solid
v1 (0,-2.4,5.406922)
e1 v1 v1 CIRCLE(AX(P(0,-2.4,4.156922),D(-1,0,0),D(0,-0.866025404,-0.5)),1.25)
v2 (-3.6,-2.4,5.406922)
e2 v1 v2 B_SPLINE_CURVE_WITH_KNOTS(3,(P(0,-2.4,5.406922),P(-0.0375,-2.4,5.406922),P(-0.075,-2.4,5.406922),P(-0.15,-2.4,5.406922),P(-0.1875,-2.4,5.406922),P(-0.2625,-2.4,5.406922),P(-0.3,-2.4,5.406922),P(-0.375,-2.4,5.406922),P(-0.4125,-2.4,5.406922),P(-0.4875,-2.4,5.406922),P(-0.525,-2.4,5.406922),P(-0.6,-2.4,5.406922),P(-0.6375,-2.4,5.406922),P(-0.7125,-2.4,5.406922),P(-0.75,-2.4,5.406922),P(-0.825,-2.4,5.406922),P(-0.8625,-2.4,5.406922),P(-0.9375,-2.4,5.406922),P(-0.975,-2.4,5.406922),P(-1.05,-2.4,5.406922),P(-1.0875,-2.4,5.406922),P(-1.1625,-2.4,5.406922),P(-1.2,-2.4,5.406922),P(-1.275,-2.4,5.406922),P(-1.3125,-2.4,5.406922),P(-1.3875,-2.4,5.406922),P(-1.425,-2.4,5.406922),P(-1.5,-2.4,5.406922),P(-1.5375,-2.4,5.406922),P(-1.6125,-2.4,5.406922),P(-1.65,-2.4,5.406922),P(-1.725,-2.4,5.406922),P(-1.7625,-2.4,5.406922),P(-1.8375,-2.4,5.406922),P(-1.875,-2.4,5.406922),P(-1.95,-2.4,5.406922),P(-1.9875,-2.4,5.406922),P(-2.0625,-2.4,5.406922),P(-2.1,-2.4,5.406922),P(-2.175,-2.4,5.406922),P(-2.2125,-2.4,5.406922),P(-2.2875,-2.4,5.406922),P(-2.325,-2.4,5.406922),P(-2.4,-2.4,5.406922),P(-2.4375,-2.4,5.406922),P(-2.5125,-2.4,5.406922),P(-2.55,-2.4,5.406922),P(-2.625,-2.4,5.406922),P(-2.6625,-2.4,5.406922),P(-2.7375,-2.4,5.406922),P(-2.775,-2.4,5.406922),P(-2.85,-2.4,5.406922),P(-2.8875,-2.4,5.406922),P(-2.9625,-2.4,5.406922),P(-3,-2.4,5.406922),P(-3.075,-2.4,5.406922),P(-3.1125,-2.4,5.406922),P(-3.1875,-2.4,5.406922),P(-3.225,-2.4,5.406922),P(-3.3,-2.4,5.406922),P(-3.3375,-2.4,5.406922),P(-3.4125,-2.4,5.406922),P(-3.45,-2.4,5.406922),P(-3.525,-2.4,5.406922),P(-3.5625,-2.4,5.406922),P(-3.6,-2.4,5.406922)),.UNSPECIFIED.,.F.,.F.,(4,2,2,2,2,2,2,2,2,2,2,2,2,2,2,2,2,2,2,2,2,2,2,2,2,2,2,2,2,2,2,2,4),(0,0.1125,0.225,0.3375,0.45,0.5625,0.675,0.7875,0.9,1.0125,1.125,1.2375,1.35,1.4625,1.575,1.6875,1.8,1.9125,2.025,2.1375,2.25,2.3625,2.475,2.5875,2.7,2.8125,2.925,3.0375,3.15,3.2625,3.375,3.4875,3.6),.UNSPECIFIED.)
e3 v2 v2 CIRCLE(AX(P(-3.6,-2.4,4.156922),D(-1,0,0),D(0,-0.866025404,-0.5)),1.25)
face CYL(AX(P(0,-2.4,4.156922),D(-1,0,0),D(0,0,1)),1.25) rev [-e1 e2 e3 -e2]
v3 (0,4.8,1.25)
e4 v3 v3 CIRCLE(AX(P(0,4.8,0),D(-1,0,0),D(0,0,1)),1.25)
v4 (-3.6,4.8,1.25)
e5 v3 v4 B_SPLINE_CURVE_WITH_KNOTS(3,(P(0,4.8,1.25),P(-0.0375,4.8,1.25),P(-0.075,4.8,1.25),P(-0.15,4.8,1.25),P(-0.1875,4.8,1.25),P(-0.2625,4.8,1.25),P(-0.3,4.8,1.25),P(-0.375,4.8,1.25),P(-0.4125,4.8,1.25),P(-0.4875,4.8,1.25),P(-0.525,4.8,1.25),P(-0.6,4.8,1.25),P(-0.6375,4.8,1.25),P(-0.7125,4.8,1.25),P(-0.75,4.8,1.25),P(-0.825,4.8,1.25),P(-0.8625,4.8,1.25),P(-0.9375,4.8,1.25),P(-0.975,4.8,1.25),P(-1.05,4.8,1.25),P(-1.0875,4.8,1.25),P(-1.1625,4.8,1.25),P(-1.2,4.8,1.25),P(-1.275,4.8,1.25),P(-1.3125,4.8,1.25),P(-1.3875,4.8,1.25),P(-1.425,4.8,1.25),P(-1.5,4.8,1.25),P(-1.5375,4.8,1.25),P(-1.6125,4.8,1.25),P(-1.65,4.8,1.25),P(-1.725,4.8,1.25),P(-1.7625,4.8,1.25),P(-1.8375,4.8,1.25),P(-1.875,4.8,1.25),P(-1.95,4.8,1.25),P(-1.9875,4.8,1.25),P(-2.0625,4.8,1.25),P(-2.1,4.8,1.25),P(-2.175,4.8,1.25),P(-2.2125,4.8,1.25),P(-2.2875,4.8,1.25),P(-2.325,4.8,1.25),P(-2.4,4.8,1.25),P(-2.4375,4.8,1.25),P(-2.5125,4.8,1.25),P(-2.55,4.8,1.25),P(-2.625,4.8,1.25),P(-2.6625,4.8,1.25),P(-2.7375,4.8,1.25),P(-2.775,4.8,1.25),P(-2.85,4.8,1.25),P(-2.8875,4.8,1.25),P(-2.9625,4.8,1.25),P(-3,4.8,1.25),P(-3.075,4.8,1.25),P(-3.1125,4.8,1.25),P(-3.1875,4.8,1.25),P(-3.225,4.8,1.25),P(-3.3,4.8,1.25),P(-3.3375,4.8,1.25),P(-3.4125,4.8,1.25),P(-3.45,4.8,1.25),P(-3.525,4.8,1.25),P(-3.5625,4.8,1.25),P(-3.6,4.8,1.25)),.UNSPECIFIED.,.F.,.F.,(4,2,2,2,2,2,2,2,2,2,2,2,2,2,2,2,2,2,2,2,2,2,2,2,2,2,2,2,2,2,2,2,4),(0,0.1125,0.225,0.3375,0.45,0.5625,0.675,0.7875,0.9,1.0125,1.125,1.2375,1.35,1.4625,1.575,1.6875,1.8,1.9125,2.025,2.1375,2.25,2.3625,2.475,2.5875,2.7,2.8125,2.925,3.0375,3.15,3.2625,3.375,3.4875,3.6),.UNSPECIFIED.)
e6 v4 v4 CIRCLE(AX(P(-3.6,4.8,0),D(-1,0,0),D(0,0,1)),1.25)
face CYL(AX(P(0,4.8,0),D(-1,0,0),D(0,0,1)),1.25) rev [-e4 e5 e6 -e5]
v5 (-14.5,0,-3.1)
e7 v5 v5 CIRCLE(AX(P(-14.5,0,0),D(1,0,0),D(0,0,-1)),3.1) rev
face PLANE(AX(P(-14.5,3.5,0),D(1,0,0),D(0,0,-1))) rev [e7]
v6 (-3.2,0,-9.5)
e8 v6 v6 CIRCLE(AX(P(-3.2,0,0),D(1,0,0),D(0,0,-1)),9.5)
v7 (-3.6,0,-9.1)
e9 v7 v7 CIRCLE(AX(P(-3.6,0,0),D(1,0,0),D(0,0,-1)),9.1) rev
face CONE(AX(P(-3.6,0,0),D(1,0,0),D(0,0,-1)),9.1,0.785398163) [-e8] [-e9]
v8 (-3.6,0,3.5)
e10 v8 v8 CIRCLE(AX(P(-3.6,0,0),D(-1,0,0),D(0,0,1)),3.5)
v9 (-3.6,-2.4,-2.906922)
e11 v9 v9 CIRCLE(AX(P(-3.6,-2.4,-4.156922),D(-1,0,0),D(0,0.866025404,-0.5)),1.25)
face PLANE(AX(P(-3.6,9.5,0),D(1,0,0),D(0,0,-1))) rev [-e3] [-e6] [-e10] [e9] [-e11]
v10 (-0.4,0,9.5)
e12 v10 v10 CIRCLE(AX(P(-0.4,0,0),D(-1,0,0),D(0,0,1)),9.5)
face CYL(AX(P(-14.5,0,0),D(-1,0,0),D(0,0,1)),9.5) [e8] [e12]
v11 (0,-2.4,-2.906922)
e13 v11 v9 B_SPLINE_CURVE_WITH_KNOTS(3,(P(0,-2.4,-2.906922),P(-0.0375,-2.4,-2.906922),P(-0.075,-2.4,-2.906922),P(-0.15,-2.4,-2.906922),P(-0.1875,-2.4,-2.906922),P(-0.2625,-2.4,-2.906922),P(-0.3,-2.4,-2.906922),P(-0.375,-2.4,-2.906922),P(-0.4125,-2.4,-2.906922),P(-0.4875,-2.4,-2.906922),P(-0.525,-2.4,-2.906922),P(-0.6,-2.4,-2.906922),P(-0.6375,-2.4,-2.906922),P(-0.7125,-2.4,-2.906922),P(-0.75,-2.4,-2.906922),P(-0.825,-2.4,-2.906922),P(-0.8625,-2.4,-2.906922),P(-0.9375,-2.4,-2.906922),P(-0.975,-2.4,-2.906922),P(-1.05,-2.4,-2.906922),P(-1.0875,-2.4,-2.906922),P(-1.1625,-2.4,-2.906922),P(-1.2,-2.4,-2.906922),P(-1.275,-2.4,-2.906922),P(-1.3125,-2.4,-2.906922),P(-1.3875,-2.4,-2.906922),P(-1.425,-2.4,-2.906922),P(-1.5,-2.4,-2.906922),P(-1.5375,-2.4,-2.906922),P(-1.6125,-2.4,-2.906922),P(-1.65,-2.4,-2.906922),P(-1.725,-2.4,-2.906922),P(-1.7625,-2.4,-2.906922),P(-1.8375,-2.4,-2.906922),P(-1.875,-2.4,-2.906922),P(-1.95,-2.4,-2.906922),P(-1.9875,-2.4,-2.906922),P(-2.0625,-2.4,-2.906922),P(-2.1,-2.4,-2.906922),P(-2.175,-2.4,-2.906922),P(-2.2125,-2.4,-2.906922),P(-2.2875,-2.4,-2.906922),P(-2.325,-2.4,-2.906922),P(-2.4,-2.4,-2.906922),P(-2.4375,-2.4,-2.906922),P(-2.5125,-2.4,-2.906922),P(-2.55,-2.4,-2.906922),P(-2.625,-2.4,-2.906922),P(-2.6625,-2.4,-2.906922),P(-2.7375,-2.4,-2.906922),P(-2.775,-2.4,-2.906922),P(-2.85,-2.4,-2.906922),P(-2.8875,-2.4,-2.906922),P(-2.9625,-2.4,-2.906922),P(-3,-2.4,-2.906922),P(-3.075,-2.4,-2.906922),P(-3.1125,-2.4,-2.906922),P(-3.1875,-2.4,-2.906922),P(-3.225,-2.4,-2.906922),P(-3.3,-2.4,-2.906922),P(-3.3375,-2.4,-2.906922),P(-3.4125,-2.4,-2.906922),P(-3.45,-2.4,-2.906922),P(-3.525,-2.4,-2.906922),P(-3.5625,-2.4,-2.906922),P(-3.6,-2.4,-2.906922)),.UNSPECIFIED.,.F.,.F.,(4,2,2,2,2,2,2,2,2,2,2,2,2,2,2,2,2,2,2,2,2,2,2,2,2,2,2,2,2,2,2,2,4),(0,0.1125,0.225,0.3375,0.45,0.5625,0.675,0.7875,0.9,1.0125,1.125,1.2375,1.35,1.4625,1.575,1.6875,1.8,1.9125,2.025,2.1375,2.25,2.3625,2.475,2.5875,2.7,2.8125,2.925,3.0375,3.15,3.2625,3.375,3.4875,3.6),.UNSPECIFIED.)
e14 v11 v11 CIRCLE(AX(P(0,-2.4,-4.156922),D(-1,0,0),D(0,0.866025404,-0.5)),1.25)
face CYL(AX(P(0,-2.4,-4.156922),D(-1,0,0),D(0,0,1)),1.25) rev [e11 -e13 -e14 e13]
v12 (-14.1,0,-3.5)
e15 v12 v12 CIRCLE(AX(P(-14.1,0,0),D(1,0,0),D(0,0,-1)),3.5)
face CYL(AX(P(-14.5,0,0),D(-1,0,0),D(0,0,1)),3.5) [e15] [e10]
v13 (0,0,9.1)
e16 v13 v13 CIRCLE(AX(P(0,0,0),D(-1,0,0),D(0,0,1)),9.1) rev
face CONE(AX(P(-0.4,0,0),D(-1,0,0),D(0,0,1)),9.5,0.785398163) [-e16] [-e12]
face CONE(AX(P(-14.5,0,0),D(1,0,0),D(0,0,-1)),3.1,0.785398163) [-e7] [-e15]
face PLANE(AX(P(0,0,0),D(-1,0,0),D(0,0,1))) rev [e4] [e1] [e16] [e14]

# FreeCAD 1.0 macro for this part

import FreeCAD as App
import Part
import Sketcher

V = App.Vector
Q = App.Units.Quantity


def edges_at(feature, points):
    """Names of the edges that pass closest to the given points."""
    edges = feature.Shape.Edges
    near = lambda p: min(range(len(edges)), key=lambda i: edges[i].distToShape(Part.Vertex(*p))[0])
    return sorted({f"Edge{near(p) + 1}" for p in points})

doc = App.newDocument("Part")
params = doc.addObject("Spreadsheet::Sheet", "Params")
for row, (alias, value) in enumerate([
    ("sketch1_height", "6 mm"),
    ("sketch1_width", "3.6 mm"),
    ("sketch1_width2", "10.9 mm"),
    ("sketch1_height2", "9.5 mm"),
    ("revolution_angle", "360 deg"),
    ("sketch2_diameter", "2.5 mm"),
    ("chamfer_size", "0.4 mm"),
], start=1):
    params.set(f"A{row}", alias)
    params.set(f"B{row}", "=" + value)
    params.setAlias(f"B{row}", alias)

body = doc.addObject("PartDesign::Body", "Body")

# Sketch on XY plane
sketch1 = doc.addObject("Sketcher::SketchObject", "Sketch")
body.addObject(sketch1)
sketch1.AttachmentSupport = (doc.XY_Plane, [""])
sketch1.MapMode = "FlatFace"
sketch1.addGeometry([
    Part.LineSegment(V(0, 0, 0), V(0, 9.5, 0)),  # 0
    Part.LineSegment(V(0, 9.5, 0), V(-3.6, 9.5, 0)),  # 1
    Part.LineSegment(V(-3.6, 9.5, 0), V(-3.6, 3.5, 0)),  # 2
    Part.LineSegment(V(-3.6, 3.5, 0), V(-14.5, 3.5, 0)),  # 3
    Part.LineSegment(V(-14.5, 3.5, 0), V(-14.5, 0, 0)),  # 4
    Part.LineSegment(V(-14.5, 0, 0), V(0, 0, 0)),  # 5
], False)
sketch1.addConstraint([
    Sketcher.Constraint("Coincident", 0, 2, 1, 1),
    Sketcher.Constraint("Coincident", 1, 2, 2, 1),
    Sketcher.Constraint("Coincident", 2, 2, 3, 1),
    Sketcher.Constraint("Coincident", 3, 2, 4, 1),
    Sketcher.Constraint("Coincident", 4, 2, 5, 1),
    Sketcher.Constraint("Coincident", 5, 2, 0, 1),
    Sketcher.Constraint("Vertical", 0),
    Sketcher.Constraint("Horizontal", 1),
    Sketcher.Constraint("Vertical", 2),
    Sketcher.Constraint("Horizontal", 3),
    Sketcher.Constraint("Vertical", 4),
    Sketcher.Constraint("Horizontal", 5),
    Sketcher.Constraint("Coincident", 5, 2, -1, 1),
    Sketcher.Constraint("DistanceY", 2, 2, 2, 1, Q("6 mm")),
    Sketcher.Constraint("DistanceX", 1, 2, 1, 1, Q("3.6 mm")),
    Sketcher.Constraint("DistanceX", 3, 2, 3, 1, Q("10.9 mm")),
    Sketcher.Constraint("DistanceY", 0, 1, 0, 2, Q("9.5 mm")),
])
sketch1.setExpression("Constraints[13]", "Params.sketch1_height")
sketch1.setExpression("Constraints[14]", "Params.sketch1_width")
sketch1.setExpression("Constraints[15]", "Params.sketch1_width2")
sketch1.setExpression("Constraints[16]", "Params.sketch1_height2")
revolution = doc.addObject("PartDesign::Revolution", "Revolution")
body.addObject(revolution)
revolution.Profile = sketch1
revolution.ReferenceAxis = (sketch1, ["H_Axis"])
revolution.setExpression("Angle", "Params.revolution_angle")

# Sketch on YZ plane
sketch2 = doc.addObject("Sketcher::SketchObject", "Sketch001")
body.addObject(sketch2)
sketch2.AttachmentSupport = (doc.YZ_Plane, [""])
sketch2.MapMode = "FlatFace"
sketch2.AttachmentOffset = App.Placement(V(0, 0, -3.6), App.Rotation())
sketch2.addGeometry(Part.Circle(V(4.8, 0, 0), V(0, 0, 1), 1.2), False)
sketch2.addConstraint([
    Sketcher.Constraint("PointOnObject", 0, 3, -1),
    Sketcher.Constraint("Diameter", 0, Q("2.5 mm")),
    Sketcher.Constraint("DistanceX", -1, 1, 0, 3, Q("4.8 mm")),
])
sketch2.setExpression("Constraints[1]", "Params.sketch2_diameter")
pocket1 = doc.addObject("PartDesign::Pocket", "Pocket")
body.addObject(pocket1)
pocket1.Profile = sketch2
pocket1.Type = "ThroughAll"
pocket1.Reversed = True
doc.recompute()

chamfer = doc.addObject("PartDesign::Chamfer", "Chamfer")
body.addObject(chamfer)
chamfer.Base = (pocket1, edges_at(pocket1, [(-14.5, 0, -3.5), (-3.6, 0, -9.5), (0, 0, -9.5)]))
chamfer.setExpression("Size", "Params.chamfer_size")
doc.recompute()

polarpattern = doc.addObject("PartDesign::PolarPattern", "PolarPattern")
body.addObject(polarpattern)
polarpattern.Originals = [pocket1]
polarpattern.Axis = (doc.X_Axis, [""])
polarpattern.Angle = 360
polarpattern.Occurrences = 3
body.Tip = polarpattern

doc.recompute()
